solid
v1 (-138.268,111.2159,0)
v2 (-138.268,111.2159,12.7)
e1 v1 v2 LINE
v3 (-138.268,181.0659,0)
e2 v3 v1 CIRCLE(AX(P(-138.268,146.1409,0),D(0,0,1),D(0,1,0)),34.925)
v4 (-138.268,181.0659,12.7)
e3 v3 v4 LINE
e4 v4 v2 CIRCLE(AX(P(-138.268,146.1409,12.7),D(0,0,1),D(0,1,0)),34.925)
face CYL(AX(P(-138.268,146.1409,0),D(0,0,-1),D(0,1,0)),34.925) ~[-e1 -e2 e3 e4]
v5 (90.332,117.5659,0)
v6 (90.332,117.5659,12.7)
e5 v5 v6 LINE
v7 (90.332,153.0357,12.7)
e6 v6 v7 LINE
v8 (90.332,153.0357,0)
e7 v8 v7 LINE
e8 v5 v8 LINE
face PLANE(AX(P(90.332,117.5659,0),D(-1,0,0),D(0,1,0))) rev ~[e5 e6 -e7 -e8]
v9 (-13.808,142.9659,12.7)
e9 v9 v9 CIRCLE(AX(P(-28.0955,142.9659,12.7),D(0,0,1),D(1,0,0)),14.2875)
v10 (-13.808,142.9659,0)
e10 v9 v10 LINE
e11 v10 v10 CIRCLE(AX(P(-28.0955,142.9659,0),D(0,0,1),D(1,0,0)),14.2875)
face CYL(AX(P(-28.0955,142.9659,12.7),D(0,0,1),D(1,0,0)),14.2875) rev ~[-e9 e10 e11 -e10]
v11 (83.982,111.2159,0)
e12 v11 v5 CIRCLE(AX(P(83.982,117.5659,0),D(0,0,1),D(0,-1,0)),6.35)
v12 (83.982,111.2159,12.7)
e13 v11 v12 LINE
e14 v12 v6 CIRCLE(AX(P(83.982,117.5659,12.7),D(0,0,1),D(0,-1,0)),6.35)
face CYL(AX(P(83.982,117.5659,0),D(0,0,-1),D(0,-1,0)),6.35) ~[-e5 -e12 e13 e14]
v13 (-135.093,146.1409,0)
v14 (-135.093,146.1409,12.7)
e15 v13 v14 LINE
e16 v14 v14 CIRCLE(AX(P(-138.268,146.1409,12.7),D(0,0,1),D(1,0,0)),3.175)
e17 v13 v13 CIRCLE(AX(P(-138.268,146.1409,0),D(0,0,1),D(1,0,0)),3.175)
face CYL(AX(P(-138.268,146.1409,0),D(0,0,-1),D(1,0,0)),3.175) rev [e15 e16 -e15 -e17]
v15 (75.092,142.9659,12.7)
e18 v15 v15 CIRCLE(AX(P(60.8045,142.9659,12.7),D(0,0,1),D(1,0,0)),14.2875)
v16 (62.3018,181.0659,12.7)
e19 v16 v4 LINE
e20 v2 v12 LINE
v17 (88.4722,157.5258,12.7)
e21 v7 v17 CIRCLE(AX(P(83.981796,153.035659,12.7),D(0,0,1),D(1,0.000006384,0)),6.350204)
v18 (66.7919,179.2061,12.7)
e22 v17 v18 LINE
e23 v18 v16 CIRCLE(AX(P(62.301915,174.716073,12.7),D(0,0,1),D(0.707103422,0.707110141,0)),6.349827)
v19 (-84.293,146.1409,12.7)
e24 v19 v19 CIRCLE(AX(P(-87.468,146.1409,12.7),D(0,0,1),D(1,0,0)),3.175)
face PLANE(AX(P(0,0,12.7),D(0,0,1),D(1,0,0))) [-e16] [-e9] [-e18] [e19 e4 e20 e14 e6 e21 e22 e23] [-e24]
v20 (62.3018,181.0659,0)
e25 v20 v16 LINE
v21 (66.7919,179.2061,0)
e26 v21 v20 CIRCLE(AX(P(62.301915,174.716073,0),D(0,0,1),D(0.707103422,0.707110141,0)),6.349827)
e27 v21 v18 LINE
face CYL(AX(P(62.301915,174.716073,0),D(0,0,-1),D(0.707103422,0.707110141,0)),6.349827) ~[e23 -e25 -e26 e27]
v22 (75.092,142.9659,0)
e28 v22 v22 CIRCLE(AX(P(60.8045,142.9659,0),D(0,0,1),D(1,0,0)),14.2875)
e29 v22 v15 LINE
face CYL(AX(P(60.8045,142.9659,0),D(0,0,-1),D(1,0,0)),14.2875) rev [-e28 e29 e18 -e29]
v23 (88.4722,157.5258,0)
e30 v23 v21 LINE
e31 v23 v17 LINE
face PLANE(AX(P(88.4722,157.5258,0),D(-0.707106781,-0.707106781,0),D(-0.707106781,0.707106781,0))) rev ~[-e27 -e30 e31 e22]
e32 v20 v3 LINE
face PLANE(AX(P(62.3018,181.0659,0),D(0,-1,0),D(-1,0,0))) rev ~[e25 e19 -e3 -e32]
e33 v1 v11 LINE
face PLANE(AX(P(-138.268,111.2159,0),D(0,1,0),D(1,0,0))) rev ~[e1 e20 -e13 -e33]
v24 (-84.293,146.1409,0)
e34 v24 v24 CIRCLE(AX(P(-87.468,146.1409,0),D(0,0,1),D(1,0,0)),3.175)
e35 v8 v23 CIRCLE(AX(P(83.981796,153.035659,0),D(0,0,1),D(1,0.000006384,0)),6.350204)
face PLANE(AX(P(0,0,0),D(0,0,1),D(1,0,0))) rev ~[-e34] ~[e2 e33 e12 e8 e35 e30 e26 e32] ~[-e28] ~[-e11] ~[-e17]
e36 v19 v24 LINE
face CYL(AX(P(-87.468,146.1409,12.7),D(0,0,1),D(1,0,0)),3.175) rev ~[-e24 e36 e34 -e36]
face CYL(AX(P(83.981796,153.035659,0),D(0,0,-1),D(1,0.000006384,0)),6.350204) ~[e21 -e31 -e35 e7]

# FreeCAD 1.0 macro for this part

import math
import FreeCAD as App
import Part
import Sketcher
from FreeCAD import Vector
Q = App.Units.Quantity

doc = App.newDocument("Part")
body = doc.addObject("PartDesign::Body", "Body")

# Sketch on XY plane
sketch1 = body.newObject("Sketcher::SketchObject", "Sketch")
sketch1.AttachmentSupport = (doc.getObject("XY_Plane"), [""])
sketch1.MapMode = "FlatFace"
sketch1.addGeometry([
    Part.ArcOfCircle(Part.Circle(Vector(84, 117.6, 0), Vector(0, 0, 1), 6.3), math.radians(-90), math.radians(0)),  # 0
    Part.LineSegment(Vector(90.3, 117.6, 0), Vector(90.3, 153, 0)),  # 1
    Part.ArcOfCircle(Part.Circle(Vector(84, 153, 0), Vector(0, 0, 1), 6.3), math.radians(0), math.radians(45)),  # 2
    Part.LineSegment(Vector(88.5, 157.5, 0), Vector(66.8, 179.2, 0)),  # 3
    Part.ArcOfCircle(Part.Circle(Vector(62.3, 174.7, 0), Vector(0, 0, 1), 6.4), math.radians(45), math.radians(90)),  # 4
    Part.LineSegment(Vector(62.3, 181.1, 0), Vector(-138.3, 181.1, 0)),  # 5
    Part.ArcOfCircle(Part.Circle(Vector(-138.3, 146.1, 0), Vector(0, 0, 1), 34.9), math.radians(90), math.radians(270)),  # 6
    Part.LineSegment(Vector(-138.3, 111.2, 0), Vector(84, 111.2, 0)),  # 7
    Part.Circle(Vector(-138.3, 146.1, 0), Vector(0, 0, 1), 3.2),  # 8
    Part.Circle(Vector(60.8, 143, 0), Vector(0, 0, 1), 14.3),  # 9
], False)
sketch1.addConstraint([
    Sketcher.Constraint("Tangent", 0, 2, 1, 1),
    Sketcher.Constraint("Tangent", 1, 2, 2, 1),
    Sketcher.Constraint("Tangent", 2, 2, 3, 1),
    Sketcher.Constraint("Tangent", 3, 2, 4, 1),
    Sketcher.Constraint("Tangent", 4, 2, 5, 1),
    Sketcher.Constraint("Tangent", 5, 2, 6, 1),
    Sketcher.Constraint("Tangent", 6, 2, 7, 1),
    Sketcher.Constraint("Tangent", 7, 2, 0, 1),
    Sketcher.Constraint("Vertical", 1),
    Sketcher.Constraint("Horizontal", 5),
    Sketcher.Constraint("Horizontal", 7),
    Sketcher.Constraint("Coincident", 8, 3, 6, 3),
    Sketcher.Constraint("Equal", 0, 2),
    Sketcher.Constraint("Equal", 2, 4),
    Sketcher.Constraint("Diameter", 8, Q("0.25 in")),
    Sketcher.Constraint("Radius", 0, Q("0.25 in")),
    Sketcher.Constraint("Diameter", 9, Q("1.125 in")),
    Sketcher.Constraint("Radius", 6, Q("1.375 in")),
    Sketcher.Constraint("DistanceX", 7, 1, 7, 2, Q("8.75 in")),
    Sketcher.Constraint("Angle", 3, Q("135 deg")),
    Sketcher.Constraint("DistanceY", 0, 3, 9, 3, Q("1 in")),
    Sketcher.Constraint("DistanceX", 5, 2, 5, 1, Q("200.5698 mm")),
    Sketcher.Constraint("DistanceY", -1, 1, 2, 2, Q("6.2018 in")),
    Sketcher.Constraint("DistanceX", -1, 1, 3, 2, Q("2.6296 in")),
    Sketcher.Constraint("DistanceX", 9, 3, 2, 3, Q("0.9125 in")),
])
pad1 = body.newObject("PartDesign::Pad", "Pad")
pad1.Profile = sketch1
pad1.Length = Q("0.5 in")

# Sketch on XY plane
sketch2 = body.newObject("Sketcher::SketchObject", "Sketch001")
sketch2.AttachmentSupport = (doc.getObject("XY_Plane"), [""])
sketch2.MapMode = "FlatFace"
sketch2.AttachmentOffset = App.Placement(Vector(0, 0, 0.5 * 25.4), App.Rotation())
sketch2.addGeometry(Part.Circle(Vector(-28, 143, 0), Vector(0, 0, 1), 14), False)
sketch2.addConstraint([
    Sketcher.Constraint("Diameter", 0, Q("1.125 in")),
    Sketcher.Constraint("DistanceX", 0, 3, -1, 1, Q("28.0955 mm")),
    Sketcher.Constraint("DistanceY", -1, 1, 0, 3, Q("142.966 mm")),
])
pocket1 = body.newObject("PartDesign::Pocket", "Pocket")
pocket1.Profile = sketch2
pocket1.Type = "ThroughAll"

# Sketch on XY plane
sketch3 = body.newObject("Sketcher::SketchObject", "Sketch002")
sketch3.AttachmentSupport = (doc.getObject("XY_Plane"), [""])
sketch3.MapMode = "FlatFace"
sketch3.AttachmentOffset = App.Placement(Vector(0, 0, 0.5 * 25.4), App.Rotation())
sketch3.addGeometry(Part.Circle(Vector(-87.5, 146.1, 0), Vector(0, 0, 1), 3.2), False)
sketch3.addConstraint([
    Sketcher.Constraint("Diameter", 0, Q("0.25 in")),
    Sketcher.Constraint("DistanceX", 0, 3, -1, 1, Q("87.468 mm")),
    Sketcher.Constraint("DistanceY", -1, 1, 0, 3, Q("146.141 mm")),
])
pocket2 = body.newObject("PartDesign::Pocket", "Pocket001")
pocket2.Profile = sketch3
pocket2.Type = "ThroughAll"

doc.recompute()
